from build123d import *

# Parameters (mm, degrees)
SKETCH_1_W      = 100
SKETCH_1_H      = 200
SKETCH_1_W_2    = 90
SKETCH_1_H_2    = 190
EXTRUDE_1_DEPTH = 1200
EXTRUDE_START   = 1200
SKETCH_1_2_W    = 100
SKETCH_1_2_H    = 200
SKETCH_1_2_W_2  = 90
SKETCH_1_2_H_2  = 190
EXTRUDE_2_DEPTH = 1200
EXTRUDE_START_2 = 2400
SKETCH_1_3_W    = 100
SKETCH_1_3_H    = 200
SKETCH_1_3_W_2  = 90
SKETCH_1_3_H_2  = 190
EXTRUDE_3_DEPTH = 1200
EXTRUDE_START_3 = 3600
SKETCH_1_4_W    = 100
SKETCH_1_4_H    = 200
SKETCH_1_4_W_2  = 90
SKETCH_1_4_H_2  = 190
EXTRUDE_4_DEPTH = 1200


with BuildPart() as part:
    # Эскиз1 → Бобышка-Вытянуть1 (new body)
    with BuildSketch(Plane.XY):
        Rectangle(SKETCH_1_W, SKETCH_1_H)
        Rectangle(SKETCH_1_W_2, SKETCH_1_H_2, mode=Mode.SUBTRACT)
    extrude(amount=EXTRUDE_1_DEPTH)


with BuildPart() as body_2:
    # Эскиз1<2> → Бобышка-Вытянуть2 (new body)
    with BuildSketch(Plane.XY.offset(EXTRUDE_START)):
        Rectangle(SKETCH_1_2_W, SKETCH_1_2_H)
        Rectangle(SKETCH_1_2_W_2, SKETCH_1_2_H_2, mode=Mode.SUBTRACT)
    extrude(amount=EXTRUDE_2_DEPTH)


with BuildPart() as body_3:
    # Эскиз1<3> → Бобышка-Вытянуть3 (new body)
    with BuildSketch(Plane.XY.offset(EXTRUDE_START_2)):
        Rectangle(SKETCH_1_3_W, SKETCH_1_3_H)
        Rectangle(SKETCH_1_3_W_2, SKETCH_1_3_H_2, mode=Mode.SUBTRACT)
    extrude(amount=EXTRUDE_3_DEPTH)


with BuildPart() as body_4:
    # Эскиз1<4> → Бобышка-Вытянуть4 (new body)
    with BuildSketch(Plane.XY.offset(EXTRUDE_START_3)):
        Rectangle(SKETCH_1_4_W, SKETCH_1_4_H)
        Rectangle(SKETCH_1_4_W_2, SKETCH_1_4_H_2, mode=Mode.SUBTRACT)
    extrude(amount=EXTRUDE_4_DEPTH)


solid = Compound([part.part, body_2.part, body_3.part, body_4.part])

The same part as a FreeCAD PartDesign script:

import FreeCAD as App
import Part
import Sketcher

doc = App.newDocument("Part")
params = doc.addObject("Spreadsheet::Sheet", "Params")
for row, (alias, value) in enumerate([
    ("sketch1_width", "100 mm"),
    ("sketch1_width2", "90 mm"),
    ("sketch1_height", "200 mm"),
    ("sketch1_height2", "190 mm"),
    ("pad1_length", "1200 mm"),
    ("sketch2_width", "100 mm"),
    ("sketch2_width2", "90 mm"),
    ("sketch2_height", "200 mm"),
    ("sketch2_height2", "190 mm"),
    ("pad2_length", "1200 mm"),
    ("sketch3_width", "100 mm"),
    ("sketch3_width2", "90 mm"),
    ("sketch3_height", "200 mm"),
    ("sketch3_height2", "190 mm"),
    ("pad3_length", "1200 mm"),
    ("sketch4_width", "100 mm"),
    ("sketch4_width2", "90 mm"),
    ("sketch4_height", "200 mm"),
    ("sketch4_height2", "190 mm"),
    ("pad4_length", "1200 mm"),
], start=1):
    params.set(f"A{row}", alias)
    params.set(f"B{row}", "=" + value)
    params.setAlias(f"B{row}", alias)

body = doc.addObject("PartDesign::Body", "Body")

# Sketch on XY plane
sketch1 = doc.addObject("Sketcher::SketchObject", "Sketch")
body.addObject(sketch1)
sketch1.AttachmentSupport = (doc.XY_Plane, [""])
sketch1.MapMode = "FlatFace"
sketch1.addGeometry([
    Part.LineSegment(App.Vector(-50, 100, 0), App.Vector(-50, -100, 0)),  # 0
    Part.LineSegment(App.Vector(-50, -100, 0), App.Vector(50, -100, 0)),  # 1
    Part.LineSegment(App.Vector(50, -100, 0), App.Vector(50, 100, 0)),  # 2
    Part.LineSegment(App.Vector(50, 100, 0), App.Vector(-50, 100, 0)),  # 3
    Part.LineSegment(App.Vector(45, -95, 0), App.Vector(-45, -95, 0)),  # 4
    Part.LineSegment(App.Vector(-45, -95, 0), App.Vector(-45, 95, 0)),  # 5
    Part.LineSegment(App.Vector(-45, 95, 0), App.Vector(45, 95, 0)),  # 6
    Part.LineSegment(App.Vector(45, 95, 0), App.Vector(45, -95, 0)),  # 7
], False)
sketch1.addConstraint([
    Sketcher.Constraint("Coincident", 0, 2, 1, 1),
    Sketcher.Constraint("Coincident", 1, 2, 2, 1),
    Sketcher.Constraint("Coincident", 2, 2, 3, 1),
    Sketcher.Constraint("Coincident", 3, 2, 0, 1),
    Sketcher.Constraint("Coincident", 4, 2, 5, 1),
    Sketcher.Constraint("Coincident", 5, 2, 6, 1),
    Sketcher.Constraint("Coincident", 6, 2, 7, 1),
    Sketcher.Constraint("Coincident", 7, 2, 4, 1),
    Sketcher.Constraint("Vertical", 0),
    Sketcher.Constraint("Horizontal", 1),
    Sketcher.Constraint("Vertical", 2),
    Sketcher.Constraint("Horizontal", 3),
    Sketcher.Constraint("Horizontal", 4),
    Sketcher.Constraint("Vertical", 5),
    Sketcher.Constraint("Horizontal", 6),
    Sketcher.Constraint("Vertical", 7),
    Sketcher.Constraint("Symmetric", 0, 2, 2, 2, -1, 1),
    Sketcher.Constraint("Symmetric", 4, 2, 6, 2, -1, 1),
    Sketcher.Constraint("DistanceX", 1, 1, 1, 2, 100.0),
    Sketcher.Constraint("DistanceX", 4, 2, 4, 1, 90.0),
    Sketcher.Constraint("DistanceY", 0, 2, 0, 1, 200.0),
    Sketcher.Constraint("DistanceY", 5, 1, 5, 2, 190.0),
])
sketch1.setExpression("Constraints[18]", "Params.sketch1_width")
sketch1.setExpression("Constraints[19]", "Params.sketch1_width2")
sketch1.setExpression("Constraints[20]", "Params.sketch1_height")
sketch1.setExpression("Constraints[21]", "Params.sketch1_height2")
pad1 = doc.addObject("PartDesign::Pad", "Pad")
body.addObject(pad1)
pad1.Profile = sketch1
pad1.setExpression("Length", "Params.pad1_length")
body2 = doc.addObject("PartDesign::Body", "Body001")

# Sketch on XY plane
sketch2 = doc.addObject("Sketcher::SketchObject", "Sketch001")
body2.addObject(sketch2)
sketch2.AttachmentSupport = (doc.getObject("XY_Plane001"), [""])
sketch2.MapMode = "FlatFace"
sketch2.AttachmentOffset = App.Placement(App.Vector(0, 0, 1200), App.Rotation())
sketch2.addGeometry([
    Part.LineSegment(App.Vector(-50, 100, 0), App.Vector(-50, -100, 0)),  # 0
    Part.LineSegment(App.Vector(-50, -100, 0), App.Vector(50, -100, 0)),  # 1
    Part.LineSegment(App.Vector(50, -100, 0), App.Vector(50, 100, 0)),  # 2
    Part.LineSegment(App.Vector(50, 100, 0), App.Vector(-50, 100, 0)),  # 3
    Part.LineSegment(App.Vector(45, -95, 0), App.Vector(-45, -95, 0)),  # 4
    Part.LineSegment(App.Vector(-45, -95, 0), App.Vector(-45, 95, 0)),  # 5
    Part.LineSegment(App.Vector(-45, 95, 0), App.Vector(45, 95, 0)),  # 6
    Part.LineSegment(App.Vector(45, 95, 0), App.Vector(45, -95, 0)),  # 7
], False)
sketch2.addConstraint([
    Sketcher.Constraint("Coincident", 0, 2, 1, 1),
    Sketcher.Constraint("Coincident", 1, 2, 2, 1),
    Sketcher.Constraint("Coincident", 2, 2, 3, 1),
    Sketcher.Constraint("Coincident", 3, 2, 0, 1),
    Sketcher.Constraint("Coincident", 4, 2, 5, 1),
    Sketcher.Constraint("Coincident", 5, 2, 6, 1),
    Sketcher.Constraint("Coincident", 6, 2, 7, 1),
    Sketcher.Constraint("Coincident", 7, 2, 4, 1),
    Sketcher.Constraint("Vertical", 0),
    Sketcher.Constraint("Horizontal", 1),
    Sketcher.Constraint("Vertical", 2),
    Sketcher.Constraint("Horizontal", 3),
    Sketcher.Constraint("Horizontal", 4),
    Sketcher.Constraint("Vertical", 5),
    Sketcher.Constraint("Horizontal", 6),
    Sketcher.Constraint("Vertical", 7),
    Sketcher.Constraint("Symmetric", 0, 2, 2, 2, -1, 1),
    Sketcher.Constraint("Symmetric", 4, 2, 6, 2, -1, 1),
    Sketcher.Constraint("DistanceX", 1, 1, 1, 2, 100.0),
    Sketcher.Constraint("DistanceX", 4, 2, 4, 1, 90.0),
    Sketcher.Constraint("DistanceY", 0, 2, 0, 1, 200.0),
    Sketcher.Constraint("DistanceY", 5, 1, 5, 2, 190.0),
])
sketch2.setExpression("Constraints[18]", "Params.sketch2_width")
sketch2.setExpression("Constraints[19]", "Params.sketch2_width2")
sketch2.setExpression("Constraints[20]", "Params.sketch2_height")
sketch2.setExpression("Constraints[21]", "Params.sketch2_height2")
pad2 = doc.addObject("PartDesign::Pad", "Pad001")
body2.addObject(pad2)
pad2.Profile = sketch2
pad2.setExpression("Length", "Params.pad2_length")
body3 = doc.addObject("PartDesign::Body", "Body002")

# Sketch on XY plane
sketch3 = doc.addObject("Sketcher::SketchObject", "Sketch002")
body3.addObject(sketch3)
sketch3.AttachmentSupport = (doc.getObject("XY_Plane002"), [""])
sketch3.MapMode = "FlatFace"
sketch3.AttachmentOffset = App.Placement(App.Vector(0, 0, 2400), App.Rotation())
sketch3.addGeometry([
    Part.LineSegment(App.Vector(-50, 100, 0), App.Vector(-50, -100, 0)),  # 0
    Part.LineSegment(App.Vector(-50, -100, 0), App.Vector(50, -100, 0)),  # 1
    Part.LineSegment(App.Vector(50, -100, 0), App.Vector(50, 100, 0)),  # 2
    Part.LineSegment(App.Vector(50, 100, 0), App.Vector(-50, 100, 0)),  # 3
    Part.LineSegment(App.Vector(45, -95, 0), App.Vector(-45, -95, 0)),  # 4
    Part.LineSegment(App.Vector(-45, -95, 0), App.Vector(-45, 95, 0)),  # 5
    Part.LineSegment(App.Vector(-45, 95, 0), App.Vector(45, 95, 0)),  # 6
    Part.LineSegment(App.Vector(45, 95, 0), App.Vector(45, -95, 0)),  # 7
], False)
sketch3.addConstraint([
    Sketcher.Constraint("Coincident", 0, 2, 1, 1),
    Sketcher.Constraint("Coincident", 1, 2, 2, 1),
    Sketcher.Constraint("Coincident", 2, 2, 3, 1),
    Sketcher.Constraint("Coincident", 3, 2, 0, 1),
    Sketcher.Constraint("Coincident", 4, 2, 5, 1),
    Sketcher.Constraint("Coincident", 5, 2, 6, 1),
    Sketcher.Constraint("Coincident", 6, 2, 7, 1),
    Sketcher.Constraint("Coincident", 7, 2, 4, 1),
    Sketcher.Constraint("Vertical", 0),
    Sketcher.Constraint("Horizontal", 1),
    Sketcher.Constraint("Vertical", 2),
    Sketcher.Constraint("Horizontal", 3),
    Sketcher.Constraint("Horizontal", 4),
    Sketcher.Constraint("Vertical", 5),
    Sketcher.Constraint("Horizontal", 6),
    Sketcher.Constraint("Vertical", 7),
    Sketcher.Constraint("Symmetric", 0, 2, 2, 2, -1, 1),
    Sketcher.Constraint("Symmetric", 4, 2, 6, 2, -1, 1),
    Sketcher.Constraint("DistanceX", 1, 1, 1, 2, 100.0),
    Sketcher.Constraint("DistanceX", 4, 2, 4, 1, 90.0),
    Sketcher.Constraint("DistanceY", 0, 2, 0, 1, 200.0),
    Sketcher.Constraint("DistanceY", 5, 1, 5, 2, 190.0),
])
sketch3.setExpression("Constraints[18]", "Params.sketch3_width")
sketch3.setExpression("Constraints[19]", "Params.sketch3_width2")
sketch3.setExpression("Constraints[20]", "Params.sketch3_height")
sketch3.setExpression("Constraints[21]", "Params.sketch3_height2")
pad3 = doc.addObject("PartDesign::Pad", "Pad002")
body3.addObject(pad3)
pad3.Profile = sketch3
pad3.setExpression("Length", "Params.pad3_length")
body4 = doc.addObject("PartDesign::Body", "Body003")

# Sketch on XY plane
sketch4 = doc.addObject("Sketcher::SketchObject", "Sketch003")
body4.addObject(sketch4)
sketch4.AttachmentSupport = (doc.getObject("XY_Plane003"), [""])
sketch4.MapMode = "FlatFace"
sketch4.AttachmentOffset = App.Placement(App.Vector(0, 0, 3600), App.Rotation())
sketch4.addGeometry([
    Part.LineSegment(App.Vector(-50, 100, 0), App.Vector(-50, -100, 0)),  # 0
    Part.LineSegment(App.Vector(-50, -100, 0), App.Vector(50, -100, 0)),  # 1
    Part.LineSegment(App.Vector(50, -100, 0), App.Vector(50, 100, 0)),  # 2
    Part.LineSegment(App.Vector(50, 100, 0), App.Vector(-50, 100, 0)),  # 3
    Part.LineSegment(App.Vector(45, -95, 0), App.Vector(-45, -95, 0)),  # 4
    Part.LineSegment(App.Vector(-45, -95, 0), App.Vector(-45, 95, 0)),  # 5
    Part.LineSegment(App.Vector(-45, 95, 0), App.Vector(45, 95, 0)),  # 6
    Part.LineSegment(App.Vector(45, 95, 0), App.Vector(45, -95, 0)),  # 7
], False)
sketch4.addConstraint([
    Sketcher.Constraint("Coincident", 0, 2, 1, 1),
    Sketcher.Constraint("Coincident", 1, 2, 2, 1),
    Sketcher.Constraint("Coincident", 2, 2, 3, 1),
    Sketcher.Constraint("Coincident", 3, 2, 0, 1),
    Sketcher.Constraint("Coincident", 4, 2, 5, 1),
    Sketcher.Constraint("Coincident", 5, 2, 6, 1),
    Sketcher.Constraint("Coincident", 6, 2, 7, 1),
    Sketcher.Constraint("Coincident", 7, 2, 4, 1),
    Sketcher.Constraint("Vertical", 0),
    Sketcher.Constraint("Horizontal", 1),
    Sketcher.Constraint("Vertical", 2),
    Sketcher.Constraint("Horizontal", 3),
    Sketcher.Constraint("Horizontal", 4),
    Sketcher.Constraint("Vertical", 5),
    Sketcher.Constraint("Horizontal", 6),
    Sketcher.Constraint("Vertical", 7),
    Sketcher.Constraint("Symmetric", 0, 2, 2, 2, -1, 1),
    Sketcher.Constraint("Symmetric", 4, 2, 6, 2, -1, 1),
    Sketcher.Constraint("DistanceX", 1, 1, 1, 2, 100.0),
    Sketcher.Constraint("DistanceX", 4, 2, 4, 1, 90.0),
    Sketcher.Constraint("DistanceY", 0, 2, 0, 1, 200.0),
    Sketcher.Constraint("DistanceY", 5, 1, 5, 2, 190.0),
])
sketch4.setExpression("Constraints[18]", "Params.sketch4_width")
sketch4.setExpression("Constraints[19]", "Params.sketch4_width2")
sketch4.setExpression("Constraints[20]", "Params.sketch4_height")
sketch4.setExpression("Constraints[21]", "Params.sketch4_height2")
pad4 = doc.addObject("PartDesign::Pad", "Pad003")
body4.addObject(pad4)
pad4.Profile = sketch4
pad4.setExpression("Length", "Params.pad4_length")

doc.recompute()
